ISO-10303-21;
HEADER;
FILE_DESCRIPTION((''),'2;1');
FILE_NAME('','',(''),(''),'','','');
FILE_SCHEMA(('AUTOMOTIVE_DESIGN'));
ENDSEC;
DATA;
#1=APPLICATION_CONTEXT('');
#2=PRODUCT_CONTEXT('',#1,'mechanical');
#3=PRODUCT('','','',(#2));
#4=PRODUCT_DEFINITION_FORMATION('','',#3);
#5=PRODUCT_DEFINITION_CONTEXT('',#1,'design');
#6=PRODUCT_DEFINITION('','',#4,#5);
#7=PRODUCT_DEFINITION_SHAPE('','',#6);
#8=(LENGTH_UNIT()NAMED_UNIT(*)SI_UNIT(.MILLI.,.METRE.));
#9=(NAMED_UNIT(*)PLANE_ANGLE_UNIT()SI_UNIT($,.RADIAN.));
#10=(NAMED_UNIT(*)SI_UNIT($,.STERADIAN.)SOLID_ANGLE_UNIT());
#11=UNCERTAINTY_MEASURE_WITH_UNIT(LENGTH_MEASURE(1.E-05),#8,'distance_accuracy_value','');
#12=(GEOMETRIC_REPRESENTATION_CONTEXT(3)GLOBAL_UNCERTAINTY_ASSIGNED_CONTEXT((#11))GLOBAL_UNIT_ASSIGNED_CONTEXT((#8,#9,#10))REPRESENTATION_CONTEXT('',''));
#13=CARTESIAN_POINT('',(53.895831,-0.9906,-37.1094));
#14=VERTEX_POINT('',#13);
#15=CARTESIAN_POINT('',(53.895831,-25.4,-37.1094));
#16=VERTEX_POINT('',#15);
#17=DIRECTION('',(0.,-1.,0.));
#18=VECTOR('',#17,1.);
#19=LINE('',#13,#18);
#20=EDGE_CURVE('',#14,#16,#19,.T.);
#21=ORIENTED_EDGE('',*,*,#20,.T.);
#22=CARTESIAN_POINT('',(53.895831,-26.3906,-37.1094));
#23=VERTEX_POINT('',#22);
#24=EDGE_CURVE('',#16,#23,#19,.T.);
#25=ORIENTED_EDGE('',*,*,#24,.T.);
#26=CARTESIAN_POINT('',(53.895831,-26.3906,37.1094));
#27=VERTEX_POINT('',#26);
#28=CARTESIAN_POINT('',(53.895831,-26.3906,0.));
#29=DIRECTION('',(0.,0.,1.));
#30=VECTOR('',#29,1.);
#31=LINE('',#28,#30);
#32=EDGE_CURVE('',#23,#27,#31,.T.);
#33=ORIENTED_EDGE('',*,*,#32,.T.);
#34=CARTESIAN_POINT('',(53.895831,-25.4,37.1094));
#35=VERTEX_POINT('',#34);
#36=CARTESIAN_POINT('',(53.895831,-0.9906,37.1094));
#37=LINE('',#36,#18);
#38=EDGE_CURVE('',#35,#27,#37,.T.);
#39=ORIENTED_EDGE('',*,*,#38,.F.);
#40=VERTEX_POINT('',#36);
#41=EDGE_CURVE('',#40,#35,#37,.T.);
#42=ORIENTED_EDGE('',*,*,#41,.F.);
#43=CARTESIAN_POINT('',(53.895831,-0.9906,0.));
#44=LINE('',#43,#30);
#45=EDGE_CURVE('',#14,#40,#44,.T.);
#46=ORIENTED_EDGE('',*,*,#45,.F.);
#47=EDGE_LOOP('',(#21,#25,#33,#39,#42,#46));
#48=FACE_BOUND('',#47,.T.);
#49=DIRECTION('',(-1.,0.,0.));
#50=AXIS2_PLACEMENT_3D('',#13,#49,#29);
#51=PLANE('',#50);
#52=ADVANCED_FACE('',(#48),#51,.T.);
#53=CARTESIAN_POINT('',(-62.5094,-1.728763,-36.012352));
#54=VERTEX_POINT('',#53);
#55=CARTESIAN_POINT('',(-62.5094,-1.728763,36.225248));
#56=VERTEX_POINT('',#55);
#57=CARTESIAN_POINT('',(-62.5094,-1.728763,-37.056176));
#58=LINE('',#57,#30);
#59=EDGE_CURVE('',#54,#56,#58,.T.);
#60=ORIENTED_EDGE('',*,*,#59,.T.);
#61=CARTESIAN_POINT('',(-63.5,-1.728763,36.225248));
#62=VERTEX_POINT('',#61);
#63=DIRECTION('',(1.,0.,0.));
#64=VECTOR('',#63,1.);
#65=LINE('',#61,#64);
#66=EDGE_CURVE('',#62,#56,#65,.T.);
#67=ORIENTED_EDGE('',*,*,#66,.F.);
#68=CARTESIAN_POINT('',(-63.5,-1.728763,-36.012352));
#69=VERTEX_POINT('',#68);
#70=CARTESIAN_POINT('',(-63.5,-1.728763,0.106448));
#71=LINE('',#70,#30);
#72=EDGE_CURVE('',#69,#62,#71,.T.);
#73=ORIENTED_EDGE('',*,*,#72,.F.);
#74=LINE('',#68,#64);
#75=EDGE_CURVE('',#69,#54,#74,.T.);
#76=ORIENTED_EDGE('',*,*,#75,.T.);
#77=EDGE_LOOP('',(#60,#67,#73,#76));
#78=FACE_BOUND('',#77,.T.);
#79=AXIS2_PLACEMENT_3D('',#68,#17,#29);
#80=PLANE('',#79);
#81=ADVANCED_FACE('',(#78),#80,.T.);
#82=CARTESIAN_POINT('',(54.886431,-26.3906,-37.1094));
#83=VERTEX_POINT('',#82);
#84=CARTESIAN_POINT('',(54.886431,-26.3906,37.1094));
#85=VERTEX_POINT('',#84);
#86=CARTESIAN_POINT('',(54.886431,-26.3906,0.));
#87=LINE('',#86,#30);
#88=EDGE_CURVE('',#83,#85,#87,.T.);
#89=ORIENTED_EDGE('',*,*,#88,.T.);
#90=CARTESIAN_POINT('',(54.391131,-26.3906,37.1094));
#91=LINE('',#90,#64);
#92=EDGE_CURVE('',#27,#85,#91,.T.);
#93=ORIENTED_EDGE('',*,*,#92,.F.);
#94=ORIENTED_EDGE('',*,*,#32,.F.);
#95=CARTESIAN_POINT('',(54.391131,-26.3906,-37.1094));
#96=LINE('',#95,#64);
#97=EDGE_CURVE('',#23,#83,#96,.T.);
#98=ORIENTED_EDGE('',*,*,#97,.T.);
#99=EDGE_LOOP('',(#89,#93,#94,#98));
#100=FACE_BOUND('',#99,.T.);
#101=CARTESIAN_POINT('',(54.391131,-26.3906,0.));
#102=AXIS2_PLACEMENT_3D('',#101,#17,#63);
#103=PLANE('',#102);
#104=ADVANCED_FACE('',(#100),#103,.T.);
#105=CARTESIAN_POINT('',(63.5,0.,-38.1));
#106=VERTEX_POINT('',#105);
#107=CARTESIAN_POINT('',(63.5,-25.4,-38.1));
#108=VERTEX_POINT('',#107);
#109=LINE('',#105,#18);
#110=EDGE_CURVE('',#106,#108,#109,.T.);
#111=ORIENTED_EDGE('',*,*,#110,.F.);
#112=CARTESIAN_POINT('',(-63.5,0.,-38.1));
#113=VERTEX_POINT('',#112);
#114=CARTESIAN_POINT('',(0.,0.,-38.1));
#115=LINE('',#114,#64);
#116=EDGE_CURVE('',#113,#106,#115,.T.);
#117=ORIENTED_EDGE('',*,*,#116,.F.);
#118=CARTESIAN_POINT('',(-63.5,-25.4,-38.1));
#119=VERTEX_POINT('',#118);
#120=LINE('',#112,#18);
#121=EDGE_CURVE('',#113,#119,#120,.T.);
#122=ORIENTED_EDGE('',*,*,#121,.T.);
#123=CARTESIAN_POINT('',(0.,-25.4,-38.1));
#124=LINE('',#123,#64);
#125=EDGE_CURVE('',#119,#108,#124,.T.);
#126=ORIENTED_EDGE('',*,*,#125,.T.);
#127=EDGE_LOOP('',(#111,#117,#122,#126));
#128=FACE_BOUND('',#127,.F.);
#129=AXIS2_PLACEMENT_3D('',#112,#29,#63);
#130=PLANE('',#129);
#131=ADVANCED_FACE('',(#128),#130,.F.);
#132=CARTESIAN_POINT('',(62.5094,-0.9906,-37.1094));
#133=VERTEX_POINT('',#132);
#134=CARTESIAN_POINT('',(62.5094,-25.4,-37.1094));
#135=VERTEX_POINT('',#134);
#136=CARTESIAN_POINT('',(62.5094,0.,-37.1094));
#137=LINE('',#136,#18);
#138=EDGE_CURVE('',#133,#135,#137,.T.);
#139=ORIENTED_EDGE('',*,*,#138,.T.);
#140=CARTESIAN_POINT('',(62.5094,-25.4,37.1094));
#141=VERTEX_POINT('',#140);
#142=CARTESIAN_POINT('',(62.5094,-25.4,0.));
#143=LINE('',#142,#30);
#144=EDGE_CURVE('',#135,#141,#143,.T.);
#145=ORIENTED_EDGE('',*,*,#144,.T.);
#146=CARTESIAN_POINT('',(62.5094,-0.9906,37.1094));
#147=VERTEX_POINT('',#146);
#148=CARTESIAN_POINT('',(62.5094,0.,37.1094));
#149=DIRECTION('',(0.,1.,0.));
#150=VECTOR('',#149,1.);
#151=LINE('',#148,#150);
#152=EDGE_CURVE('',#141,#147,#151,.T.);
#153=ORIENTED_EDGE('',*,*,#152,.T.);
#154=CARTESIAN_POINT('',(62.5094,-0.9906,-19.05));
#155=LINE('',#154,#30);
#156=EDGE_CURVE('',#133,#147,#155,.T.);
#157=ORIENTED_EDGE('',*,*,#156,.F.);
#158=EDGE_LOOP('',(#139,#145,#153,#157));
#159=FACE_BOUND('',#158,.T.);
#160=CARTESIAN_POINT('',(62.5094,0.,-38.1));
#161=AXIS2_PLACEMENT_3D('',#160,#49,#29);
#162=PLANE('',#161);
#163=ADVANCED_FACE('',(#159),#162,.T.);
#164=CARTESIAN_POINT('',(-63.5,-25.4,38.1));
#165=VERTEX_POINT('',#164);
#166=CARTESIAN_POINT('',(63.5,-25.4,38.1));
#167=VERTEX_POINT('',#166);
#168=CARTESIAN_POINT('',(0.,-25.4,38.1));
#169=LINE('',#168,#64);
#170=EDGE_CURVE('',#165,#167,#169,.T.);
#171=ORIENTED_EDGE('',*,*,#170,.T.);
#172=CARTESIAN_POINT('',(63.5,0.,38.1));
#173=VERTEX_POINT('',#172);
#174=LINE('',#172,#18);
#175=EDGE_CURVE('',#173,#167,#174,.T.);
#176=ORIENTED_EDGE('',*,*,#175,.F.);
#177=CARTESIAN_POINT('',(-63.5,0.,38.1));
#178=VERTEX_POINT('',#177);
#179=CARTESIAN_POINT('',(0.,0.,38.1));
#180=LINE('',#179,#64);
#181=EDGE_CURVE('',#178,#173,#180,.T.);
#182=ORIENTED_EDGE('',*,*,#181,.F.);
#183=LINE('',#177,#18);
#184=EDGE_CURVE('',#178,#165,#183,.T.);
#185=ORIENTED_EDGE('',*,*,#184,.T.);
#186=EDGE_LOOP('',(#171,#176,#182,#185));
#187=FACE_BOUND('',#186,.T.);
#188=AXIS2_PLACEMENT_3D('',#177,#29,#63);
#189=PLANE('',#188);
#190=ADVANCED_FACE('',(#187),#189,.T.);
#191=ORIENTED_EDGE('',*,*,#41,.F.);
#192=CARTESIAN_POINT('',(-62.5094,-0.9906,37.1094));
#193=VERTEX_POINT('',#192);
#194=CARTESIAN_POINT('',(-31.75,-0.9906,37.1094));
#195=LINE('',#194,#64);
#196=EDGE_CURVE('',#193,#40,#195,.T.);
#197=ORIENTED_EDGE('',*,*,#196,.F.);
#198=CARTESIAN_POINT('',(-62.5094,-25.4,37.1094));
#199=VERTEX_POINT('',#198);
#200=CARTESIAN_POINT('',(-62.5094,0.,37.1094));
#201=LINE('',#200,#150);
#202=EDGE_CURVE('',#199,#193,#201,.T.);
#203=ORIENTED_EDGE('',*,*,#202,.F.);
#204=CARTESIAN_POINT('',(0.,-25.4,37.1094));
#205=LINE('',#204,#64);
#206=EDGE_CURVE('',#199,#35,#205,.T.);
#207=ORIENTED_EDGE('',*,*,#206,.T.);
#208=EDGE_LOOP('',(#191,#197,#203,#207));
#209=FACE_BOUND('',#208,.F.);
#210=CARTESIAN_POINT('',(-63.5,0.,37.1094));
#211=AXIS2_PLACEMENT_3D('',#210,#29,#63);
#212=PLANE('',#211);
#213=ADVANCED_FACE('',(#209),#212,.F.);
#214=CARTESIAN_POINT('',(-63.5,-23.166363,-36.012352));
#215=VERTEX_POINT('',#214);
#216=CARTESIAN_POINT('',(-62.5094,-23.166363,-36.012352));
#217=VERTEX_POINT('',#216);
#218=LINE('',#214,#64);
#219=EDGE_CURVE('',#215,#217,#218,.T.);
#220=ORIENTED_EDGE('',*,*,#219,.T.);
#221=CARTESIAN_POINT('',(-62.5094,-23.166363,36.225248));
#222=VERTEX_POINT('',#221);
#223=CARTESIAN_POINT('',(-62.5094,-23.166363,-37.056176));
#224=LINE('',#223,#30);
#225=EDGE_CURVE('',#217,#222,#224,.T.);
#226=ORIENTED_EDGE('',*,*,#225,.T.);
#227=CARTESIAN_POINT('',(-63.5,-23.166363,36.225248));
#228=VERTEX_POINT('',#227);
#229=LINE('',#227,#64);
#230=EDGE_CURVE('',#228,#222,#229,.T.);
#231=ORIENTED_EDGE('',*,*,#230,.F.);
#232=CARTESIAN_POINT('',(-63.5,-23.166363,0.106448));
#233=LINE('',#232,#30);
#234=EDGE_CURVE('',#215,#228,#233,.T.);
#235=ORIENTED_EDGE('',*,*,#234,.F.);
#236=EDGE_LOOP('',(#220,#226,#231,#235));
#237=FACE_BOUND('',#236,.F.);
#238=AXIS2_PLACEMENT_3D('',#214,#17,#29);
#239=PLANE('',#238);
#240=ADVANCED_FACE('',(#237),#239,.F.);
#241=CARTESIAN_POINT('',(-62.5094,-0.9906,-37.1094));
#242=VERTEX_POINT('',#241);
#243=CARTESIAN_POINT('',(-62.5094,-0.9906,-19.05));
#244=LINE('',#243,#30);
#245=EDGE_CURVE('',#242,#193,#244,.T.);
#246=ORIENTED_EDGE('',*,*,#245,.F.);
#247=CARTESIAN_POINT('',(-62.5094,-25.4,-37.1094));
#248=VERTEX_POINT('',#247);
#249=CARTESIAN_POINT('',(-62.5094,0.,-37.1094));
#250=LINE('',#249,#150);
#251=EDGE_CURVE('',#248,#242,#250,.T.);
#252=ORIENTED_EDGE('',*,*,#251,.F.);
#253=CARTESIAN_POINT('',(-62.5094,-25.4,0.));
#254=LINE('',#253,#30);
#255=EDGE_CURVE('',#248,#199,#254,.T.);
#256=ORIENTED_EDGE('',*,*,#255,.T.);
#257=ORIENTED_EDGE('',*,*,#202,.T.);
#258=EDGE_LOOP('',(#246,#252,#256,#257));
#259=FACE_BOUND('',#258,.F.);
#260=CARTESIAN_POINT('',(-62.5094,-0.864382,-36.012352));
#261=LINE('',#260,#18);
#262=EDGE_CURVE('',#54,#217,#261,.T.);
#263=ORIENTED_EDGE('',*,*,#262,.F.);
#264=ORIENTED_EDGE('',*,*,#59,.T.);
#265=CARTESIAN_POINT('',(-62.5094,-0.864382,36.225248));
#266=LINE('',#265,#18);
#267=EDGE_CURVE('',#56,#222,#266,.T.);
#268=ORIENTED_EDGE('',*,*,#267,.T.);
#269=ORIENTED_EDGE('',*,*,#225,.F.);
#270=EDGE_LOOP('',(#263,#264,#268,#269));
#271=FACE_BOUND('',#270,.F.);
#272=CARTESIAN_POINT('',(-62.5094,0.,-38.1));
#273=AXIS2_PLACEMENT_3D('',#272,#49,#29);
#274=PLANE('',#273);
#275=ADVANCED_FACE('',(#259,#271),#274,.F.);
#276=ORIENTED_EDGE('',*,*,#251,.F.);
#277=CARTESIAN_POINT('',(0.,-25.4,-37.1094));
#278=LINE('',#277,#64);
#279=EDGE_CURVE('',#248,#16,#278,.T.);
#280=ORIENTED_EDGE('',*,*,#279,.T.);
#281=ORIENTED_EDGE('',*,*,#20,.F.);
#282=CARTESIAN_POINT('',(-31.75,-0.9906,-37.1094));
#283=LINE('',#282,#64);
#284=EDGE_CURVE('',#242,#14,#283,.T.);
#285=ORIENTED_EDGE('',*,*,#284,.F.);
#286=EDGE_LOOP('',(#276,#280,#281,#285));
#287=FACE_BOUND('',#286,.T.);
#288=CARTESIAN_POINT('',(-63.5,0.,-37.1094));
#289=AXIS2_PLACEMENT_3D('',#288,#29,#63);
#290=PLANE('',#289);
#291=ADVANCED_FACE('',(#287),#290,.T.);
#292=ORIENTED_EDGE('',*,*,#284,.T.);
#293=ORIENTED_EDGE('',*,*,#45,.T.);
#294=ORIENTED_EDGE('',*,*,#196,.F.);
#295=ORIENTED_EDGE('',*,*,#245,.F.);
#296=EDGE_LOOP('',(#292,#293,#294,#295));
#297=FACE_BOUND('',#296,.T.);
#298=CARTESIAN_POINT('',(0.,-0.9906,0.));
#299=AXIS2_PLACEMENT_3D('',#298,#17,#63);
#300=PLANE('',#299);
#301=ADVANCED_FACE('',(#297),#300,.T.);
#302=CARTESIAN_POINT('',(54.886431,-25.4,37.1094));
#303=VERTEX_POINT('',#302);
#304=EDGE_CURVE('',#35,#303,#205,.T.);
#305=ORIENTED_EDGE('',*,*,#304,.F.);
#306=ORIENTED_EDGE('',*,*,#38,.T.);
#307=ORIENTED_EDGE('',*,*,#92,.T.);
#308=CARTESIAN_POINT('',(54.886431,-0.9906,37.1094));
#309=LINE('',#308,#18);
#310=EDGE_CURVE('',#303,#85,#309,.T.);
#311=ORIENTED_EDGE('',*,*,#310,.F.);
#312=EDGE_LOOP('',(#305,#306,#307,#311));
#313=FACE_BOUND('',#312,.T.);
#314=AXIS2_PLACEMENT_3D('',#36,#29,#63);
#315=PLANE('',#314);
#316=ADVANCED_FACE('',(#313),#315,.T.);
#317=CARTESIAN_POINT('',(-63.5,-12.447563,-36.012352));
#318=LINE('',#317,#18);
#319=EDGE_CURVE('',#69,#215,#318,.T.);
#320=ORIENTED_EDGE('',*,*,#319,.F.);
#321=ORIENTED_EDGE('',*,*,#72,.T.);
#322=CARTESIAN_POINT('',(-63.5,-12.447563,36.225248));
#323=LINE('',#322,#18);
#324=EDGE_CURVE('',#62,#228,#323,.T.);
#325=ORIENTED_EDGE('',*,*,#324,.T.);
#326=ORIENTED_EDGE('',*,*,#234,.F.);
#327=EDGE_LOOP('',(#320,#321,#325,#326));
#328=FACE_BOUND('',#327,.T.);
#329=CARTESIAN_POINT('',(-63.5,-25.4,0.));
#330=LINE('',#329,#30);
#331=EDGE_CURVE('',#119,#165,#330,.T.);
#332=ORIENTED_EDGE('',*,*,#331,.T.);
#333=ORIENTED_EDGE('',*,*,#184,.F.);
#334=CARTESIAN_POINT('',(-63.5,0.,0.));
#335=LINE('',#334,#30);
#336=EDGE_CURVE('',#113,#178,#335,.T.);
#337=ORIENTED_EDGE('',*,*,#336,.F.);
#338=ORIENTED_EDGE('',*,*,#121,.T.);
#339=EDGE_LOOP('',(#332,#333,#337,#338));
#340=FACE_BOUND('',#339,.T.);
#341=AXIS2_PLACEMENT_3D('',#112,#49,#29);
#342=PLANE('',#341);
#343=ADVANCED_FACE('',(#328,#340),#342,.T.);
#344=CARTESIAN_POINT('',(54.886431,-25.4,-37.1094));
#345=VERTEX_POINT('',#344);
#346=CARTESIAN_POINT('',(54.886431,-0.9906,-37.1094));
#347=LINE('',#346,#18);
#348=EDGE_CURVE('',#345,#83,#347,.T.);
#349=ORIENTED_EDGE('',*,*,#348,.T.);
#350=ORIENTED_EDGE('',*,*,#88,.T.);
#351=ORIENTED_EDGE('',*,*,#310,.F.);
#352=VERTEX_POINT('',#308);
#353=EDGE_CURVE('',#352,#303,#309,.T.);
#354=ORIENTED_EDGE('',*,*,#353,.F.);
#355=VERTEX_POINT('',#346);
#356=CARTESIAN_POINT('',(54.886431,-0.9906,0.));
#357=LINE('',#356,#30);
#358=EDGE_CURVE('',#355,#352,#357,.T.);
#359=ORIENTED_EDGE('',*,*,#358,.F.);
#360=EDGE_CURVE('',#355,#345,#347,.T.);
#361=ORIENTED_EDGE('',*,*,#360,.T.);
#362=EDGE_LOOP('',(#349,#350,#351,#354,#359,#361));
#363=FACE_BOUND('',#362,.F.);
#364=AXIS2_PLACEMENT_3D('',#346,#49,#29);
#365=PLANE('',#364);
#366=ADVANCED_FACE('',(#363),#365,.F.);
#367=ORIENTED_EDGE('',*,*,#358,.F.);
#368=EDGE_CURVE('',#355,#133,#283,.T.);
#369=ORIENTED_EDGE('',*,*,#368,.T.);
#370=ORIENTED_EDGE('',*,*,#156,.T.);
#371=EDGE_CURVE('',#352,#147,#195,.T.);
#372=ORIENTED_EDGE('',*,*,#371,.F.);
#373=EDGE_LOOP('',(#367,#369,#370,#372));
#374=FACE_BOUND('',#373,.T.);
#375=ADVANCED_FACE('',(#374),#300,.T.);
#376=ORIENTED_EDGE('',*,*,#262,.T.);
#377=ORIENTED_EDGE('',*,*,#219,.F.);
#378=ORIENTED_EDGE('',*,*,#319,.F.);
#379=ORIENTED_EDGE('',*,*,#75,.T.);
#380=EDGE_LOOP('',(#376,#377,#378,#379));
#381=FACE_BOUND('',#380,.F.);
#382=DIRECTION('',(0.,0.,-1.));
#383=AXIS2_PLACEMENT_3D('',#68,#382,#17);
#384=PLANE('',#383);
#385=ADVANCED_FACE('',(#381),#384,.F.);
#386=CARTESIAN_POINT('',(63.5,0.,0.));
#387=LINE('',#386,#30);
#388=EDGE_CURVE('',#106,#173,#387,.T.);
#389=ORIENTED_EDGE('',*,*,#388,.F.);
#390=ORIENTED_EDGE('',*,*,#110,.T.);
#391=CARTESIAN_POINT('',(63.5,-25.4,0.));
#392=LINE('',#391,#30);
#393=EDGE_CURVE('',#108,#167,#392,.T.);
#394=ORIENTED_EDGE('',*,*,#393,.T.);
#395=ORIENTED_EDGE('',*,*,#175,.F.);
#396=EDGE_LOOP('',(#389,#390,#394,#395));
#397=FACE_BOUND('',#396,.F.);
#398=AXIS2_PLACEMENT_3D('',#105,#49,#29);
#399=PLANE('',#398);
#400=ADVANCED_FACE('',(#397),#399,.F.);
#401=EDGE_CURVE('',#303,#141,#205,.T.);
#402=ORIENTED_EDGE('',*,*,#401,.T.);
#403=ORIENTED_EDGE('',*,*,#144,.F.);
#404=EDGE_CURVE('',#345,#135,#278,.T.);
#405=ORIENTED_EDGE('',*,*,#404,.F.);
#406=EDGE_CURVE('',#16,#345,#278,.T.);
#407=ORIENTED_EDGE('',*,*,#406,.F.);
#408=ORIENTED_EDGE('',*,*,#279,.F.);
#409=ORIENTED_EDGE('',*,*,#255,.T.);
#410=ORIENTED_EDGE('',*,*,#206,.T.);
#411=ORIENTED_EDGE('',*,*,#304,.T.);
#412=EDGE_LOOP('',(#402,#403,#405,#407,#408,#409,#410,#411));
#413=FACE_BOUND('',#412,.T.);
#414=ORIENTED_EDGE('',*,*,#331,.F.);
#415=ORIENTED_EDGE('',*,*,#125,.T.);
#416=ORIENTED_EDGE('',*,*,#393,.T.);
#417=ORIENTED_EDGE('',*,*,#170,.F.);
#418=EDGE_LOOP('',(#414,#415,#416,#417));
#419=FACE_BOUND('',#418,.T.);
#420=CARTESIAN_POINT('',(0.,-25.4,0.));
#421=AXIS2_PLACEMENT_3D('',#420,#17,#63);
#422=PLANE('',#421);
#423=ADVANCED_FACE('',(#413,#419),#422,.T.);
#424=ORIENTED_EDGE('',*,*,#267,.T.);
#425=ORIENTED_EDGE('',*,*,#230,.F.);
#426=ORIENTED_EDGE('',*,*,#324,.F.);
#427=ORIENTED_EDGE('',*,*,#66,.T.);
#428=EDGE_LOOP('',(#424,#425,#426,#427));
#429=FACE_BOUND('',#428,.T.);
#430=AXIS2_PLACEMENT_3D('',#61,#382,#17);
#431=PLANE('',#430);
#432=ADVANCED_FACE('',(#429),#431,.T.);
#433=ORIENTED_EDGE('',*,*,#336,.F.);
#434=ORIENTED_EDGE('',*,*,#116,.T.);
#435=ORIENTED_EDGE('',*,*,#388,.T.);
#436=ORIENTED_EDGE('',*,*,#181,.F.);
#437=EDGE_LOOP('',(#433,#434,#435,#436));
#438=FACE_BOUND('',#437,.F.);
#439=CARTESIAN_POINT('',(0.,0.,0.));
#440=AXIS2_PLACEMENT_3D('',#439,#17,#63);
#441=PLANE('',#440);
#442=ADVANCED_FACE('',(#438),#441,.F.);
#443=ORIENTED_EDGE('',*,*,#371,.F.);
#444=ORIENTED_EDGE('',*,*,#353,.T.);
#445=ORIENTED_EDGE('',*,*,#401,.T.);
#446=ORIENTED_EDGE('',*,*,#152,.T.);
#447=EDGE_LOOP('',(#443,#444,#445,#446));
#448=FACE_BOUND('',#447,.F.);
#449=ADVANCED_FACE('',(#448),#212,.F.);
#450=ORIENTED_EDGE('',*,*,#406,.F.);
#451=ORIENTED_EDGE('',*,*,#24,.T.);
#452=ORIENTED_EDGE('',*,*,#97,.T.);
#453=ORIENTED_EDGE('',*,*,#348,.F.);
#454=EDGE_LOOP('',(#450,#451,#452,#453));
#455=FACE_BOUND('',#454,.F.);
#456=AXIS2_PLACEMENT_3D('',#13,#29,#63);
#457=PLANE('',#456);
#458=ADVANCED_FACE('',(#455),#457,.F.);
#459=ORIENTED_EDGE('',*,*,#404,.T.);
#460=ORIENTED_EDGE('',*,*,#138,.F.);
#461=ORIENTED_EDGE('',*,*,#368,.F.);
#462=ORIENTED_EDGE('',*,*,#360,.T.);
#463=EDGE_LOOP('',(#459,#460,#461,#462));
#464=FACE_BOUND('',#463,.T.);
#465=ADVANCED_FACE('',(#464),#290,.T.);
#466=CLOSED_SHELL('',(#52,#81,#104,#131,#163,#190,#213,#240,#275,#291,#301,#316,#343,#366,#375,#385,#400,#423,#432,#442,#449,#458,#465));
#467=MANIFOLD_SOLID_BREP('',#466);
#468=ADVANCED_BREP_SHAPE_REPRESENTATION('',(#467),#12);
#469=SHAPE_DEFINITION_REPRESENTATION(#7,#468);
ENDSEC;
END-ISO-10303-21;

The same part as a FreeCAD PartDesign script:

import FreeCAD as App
import Part
import Sketcher
Q = App.Units.Quantity


def faces_at(feature, points):
    """Names of the faces that lie closest to the given points."""
    faces = feature.Shape.Faces
    near = lambda p: min(range(len(faces)), key=lambda i: faces[i].distToShape(Part.Vertex(*p))[0])
    return sorted({f"Face{near(p) + 1}" for p in points})

doc = App.newDocument("Part")
body = doc.addObject("PartDesign::Body", "Body")

sketch1 = body.newObject("Sketcher::SketchObject", "Sketch")
sketch1.AttachmentSupport = (doc.getObject("XZ_Plane"), [""])
sketch1.MapMode = "FlatFace"
sketch1.addGeometry([
    Part.LineSegment(App.Vector(-64, 38, 0), App.Vector(-64, -38, 0)),
    Part.LineSegment(App.Vector(-64, -38, 0), App.Vector(64, -38, 0)),
    Part.LineSegment(App.Vector(64, -38, 0), App.Vector(64, 38, 0)),
    Part.LineSegment(App.Vector(64, 38, 0), App.Vector(-64, 38, 0)),
], False)
sketch1.addConstraint([
    Sketcher.Constraint("Coincident", 0, 2, 1, 1),
    Sketcher.Constraint("Coincident", 1, 2, 2, 1),
    Sketcher.Constraint("Coincident", 2, 2, 3, 1),
    Sketcher.Constraint("Coincident", 3, 2, 0, 1),
    Sketcher.Constraint("Vertical", 0),
    Sketcher.Constraint("Horizontal", 1),
    Sketcher.Constraint("Vertical", 2),
    Sketcher.Constraint("Horizontal", 3),
    Sketcher.Constraint("Symmetric", 0, 2, 2, 2, -1, 1),
    Sketcher.Constraint("DistanceX", 1, 1, 1, 2, Q("5 in")),
    Sketcher.Constraint("DistanceY", 0, 2, 0, 1, Q("3 in")),
])
pad1 = body.newObject("PartDesign::Pad", "Pad")
pad1.Profile = sketch1
pad1.Length = Q("1 in")
doc.recompute()

thickness = body.newObject("PartDesign::Thickness", "Thickness")
thickness.Base = (pad1, faces_at(pad1, [(0, -25.4, 0)]))
thickness.Value = Q("0.039 in")
thickness.Reversed = True
thickness.Join = "Arc"

sketch2 = body.newObject("Sketcher::SketchObject", "Sketch001")
sketch2.AttachmentSupport = (doc.getObject("XZ_Plane"), [""])
sketch2.MapMode = "FlatFace"
sketch2.AttachmentOffset = App.Placement(App.Vector(0, 0, 0.039 * 25.4), App.Rotation())
sketch2.addGeometry([
    Part.LineSegment(App.Vector(53.9, 37.1, 0), App.Vector(53.9, -37.1, 0)),
    Part.LineSegment(App.Vector(53.9, -37.1, 0), App.Vector(54.9, -37.1, 0)),
    Part.LineSegment(App.Vector(54.9, -37.1, 0), App.Vector(54.9, 37.1, 0)),
    Part.LineSegment(App.Vector(54.9, 37.1, 0), App.Vector(53.9, 37.1, 0)),
], False)
sketch2.addConstraint([
    Sketcher.Constraint("Coincident", 0, 2, 1, 1),
    Sketcher.Constraint("Coincident", 1, 2, 2, 1),
    Sketcher.Constraint("Coincident", 2, 2, 3, 1),
    Sketcher.Constraint("Coincident", 3, 2, 0, 1),
    Sketcher.Constraint("Vertical", 0),
    Sketcher.Constraint("Horizontal", 1),
    Sketcher.Constraint("Vertical", 2),
    Sketcher.Constraint("Horizontal", 3),
    Sketcher.Constraint("DistanceX", 1, 1, 1, 2, Q("0.039 in")),
    Sketcher.Constraint("DistanceY", 0, 2, 0, 1, Q("2.922 in")),
    Sketcher.Constraint("DistanceY", 0, 2, -1, 1, Q("1.461 in")),
    Sketcher.Constraint("DistanceX", -1, 1, 0, 2, 53.895831),
])
pad2 = body.newObject("PartDesign::Pad", "Pad001")
pad2.Profile = sketch2
pad2.Length = Q("1 in")

sketch3 = body.newObject("Sketcher::SketchObject", "Sketch002")
sketch3.AttachmentSupport = (doc.getObject("YZ_Plane"), [""])
sketch3.MapMode = "FlatFace"
sketch3.AttachmentOffset = App.Placement(App.Vector(0, 0, -2.5 * 25.4), App.Rotation())
sketch3.addGeometry([
    Part.LineSegment(App.Vector(-2, 36, 0), App.Vector(-2, -36, 0)),
    Part.LineSegment(App.Vector(-2, -36, 0), App.Vector(-23, -36, 0)),
    Part.LineSegment(App.Vector(-23, -36, 0), App.Vector(-23, 36, 0)),
    Part.LineSegment(App.Vector(-23, 36, 0), App.Vector(-2, 36, 0)),
], False)
sketch3.addConstraint([
    Sketcher.Constraint("Coincident", 0, 2, 1, 1),
    Sketcher.Constraint("Coincident", 1, 2, 2, 1),
    Sketcher.Constraint("Coincident", 2, 2, 3, 1),
    Sketcher.Constraint("Coincident", 3, 2, 0, 1),
    Sketcher.Constraint("Vertical", 0),
    Sketcher.Constraint("Horizontal", 1),
    Sketcher.Constraint("Vertical", 2),
    Sketcher.Constraint("Horizontal", 3),
    Sketcher.Constraint("DistanceX", 1, 2, 1, 1, Q("0.844 in")),
    Sketcher.Constraint("DistanceY", 0, 2, 0, 1, Q("2.844 in")),
    Sketcher.Constraint("DistanceX", 0, 2, -1, 1, 1.728763),
    Sketcher.Constraint("DistanceY", 0, 2, -1, 1, 36.012352),
])
pocket1 = body.newObject("PartDesign::Pocket", "Pocket")
pocket1.Profile = sketch3
pocket1.Length = Q("1 in")
pocket1.Reversed = True

doc.recompute()
